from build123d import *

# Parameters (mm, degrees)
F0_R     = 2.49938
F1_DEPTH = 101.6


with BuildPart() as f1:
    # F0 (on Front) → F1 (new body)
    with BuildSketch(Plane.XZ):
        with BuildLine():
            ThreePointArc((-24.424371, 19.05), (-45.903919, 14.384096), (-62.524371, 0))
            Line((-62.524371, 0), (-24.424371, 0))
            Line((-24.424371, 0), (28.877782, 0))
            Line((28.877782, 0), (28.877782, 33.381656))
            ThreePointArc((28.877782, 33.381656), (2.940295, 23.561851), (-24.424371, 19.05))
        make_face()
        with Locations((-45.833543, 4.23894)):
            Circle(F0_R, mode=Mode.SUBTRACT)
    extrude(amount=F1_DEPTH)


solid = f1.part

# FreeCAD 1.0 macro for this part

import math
import FreeCAD as App
import Part
import Sketcher

V = App.Vector
Q = App.Units.Quantity

doc = App.newDocument("Part")
body = doc.addObject("PartDesign::Body", "Body")

# Sketch on XZ plane
sketch1 = body.newObject("Sketcher::SketchObject", "Sketch")
sketch1.AttachmentSupport = (doc.getObject("XZ_Plane"), [""])
sketch1.MapMode = "FlatFace"
sketch1.addGeometry(Part.ArcOfCircle(Part.Circle(V(-26, -25.4, 0), V(0, 0, 1), 44.5), math.radians(88), math.radians(145)), False)
sketch1.addGeometry(Part.LineSegment(V(-62.5, 0, 0), V(28.9, 0, 0)), False)
sketch1.addGeometry(Part.LineSegment(V(28.9, 0, 0), V(28.9, 33.4, 0)), False)
sketch1.addGeometry(Part.ArcOfCircle(Part.Circle(V(-33.4, 158.7, 0), V(0, 0, 1), 139.9), math.radians(-86), math.radians(-64)), False)
sketch1.addGeometry(Part.Circle(V(-45.8, 4.2, 0), V(0, 0, 1), 2.5), False)
sketch1.addConstraint(Sketcher.Constraint("Coincident", 0, 2, 1, 1))
sketch1.addConstraint(Sketcher.Constraint("Coincident", 1, 2, 2, 1))
sketch1.addConstraint(Sketcher.Constraint("Coincident", 2, 2, 3, 2))
sketch1.addConstraint(Sketcher.Constraint("Coincident", 3, 1, 0, 1))
sketch1.addConstraint(Sketcher.Constraint("Horizontal", 1))
sketch1.addConstraint(Sketcher.Constraint("Vertical", 2))
sketch1.addConstraint(Sketcher.Constraint("PointOnObject", 0, 2, -1))
sketch1.addConstraint(Sketcher.Constraint("DistanceX", 0, 2, 3, 1, Q("1.5 in")))
sketch1.addConstraint(Sketcher.Constraint("DistanceY", -1, 1, 3, 1, Q("0.75 in")))
sketch1.addConstraint(Sketcher.Constraint("Diameter", 4, Q("4.99876 mm")))
sketch1.addConstraint(Sketcher.Constraint("Radius", 3, Q("139.940972 mm")))
sketch1.addConstraint(Sketcher.Constraint("Radius", 0, Q("44.466607 mm")))
sketch1.addConstraint(Sketcher.Constraint("DistanceX", 1, 1, 1, 2, Q("91.402153 mm")))
sketch1.addConstraint(Sketcher.Constraint("DistanceY", 2, 1, 2, 2, Q("33.381656 mm")))
sketch1.addConstraint(Sketcher.Constraint("DistanceY", -1, 1, 4, 3, Q("4.23894 mm")))
sketch1.addConstraint(Sketcher.Constraint("DistanceX", 0, 2, -1, 1, Q("62.524371 mm")))
sketch1.addConstraint(Sketcher.Constraint("DistanceX", 4, 3, 3, 1, Q("21.409172 mm")))
pad1 = body.newObject("PartDesign::Pad", "Pad")
pad1.Profile = sketch1
pad1.Length = Q("4 in")

doc.recompute()
